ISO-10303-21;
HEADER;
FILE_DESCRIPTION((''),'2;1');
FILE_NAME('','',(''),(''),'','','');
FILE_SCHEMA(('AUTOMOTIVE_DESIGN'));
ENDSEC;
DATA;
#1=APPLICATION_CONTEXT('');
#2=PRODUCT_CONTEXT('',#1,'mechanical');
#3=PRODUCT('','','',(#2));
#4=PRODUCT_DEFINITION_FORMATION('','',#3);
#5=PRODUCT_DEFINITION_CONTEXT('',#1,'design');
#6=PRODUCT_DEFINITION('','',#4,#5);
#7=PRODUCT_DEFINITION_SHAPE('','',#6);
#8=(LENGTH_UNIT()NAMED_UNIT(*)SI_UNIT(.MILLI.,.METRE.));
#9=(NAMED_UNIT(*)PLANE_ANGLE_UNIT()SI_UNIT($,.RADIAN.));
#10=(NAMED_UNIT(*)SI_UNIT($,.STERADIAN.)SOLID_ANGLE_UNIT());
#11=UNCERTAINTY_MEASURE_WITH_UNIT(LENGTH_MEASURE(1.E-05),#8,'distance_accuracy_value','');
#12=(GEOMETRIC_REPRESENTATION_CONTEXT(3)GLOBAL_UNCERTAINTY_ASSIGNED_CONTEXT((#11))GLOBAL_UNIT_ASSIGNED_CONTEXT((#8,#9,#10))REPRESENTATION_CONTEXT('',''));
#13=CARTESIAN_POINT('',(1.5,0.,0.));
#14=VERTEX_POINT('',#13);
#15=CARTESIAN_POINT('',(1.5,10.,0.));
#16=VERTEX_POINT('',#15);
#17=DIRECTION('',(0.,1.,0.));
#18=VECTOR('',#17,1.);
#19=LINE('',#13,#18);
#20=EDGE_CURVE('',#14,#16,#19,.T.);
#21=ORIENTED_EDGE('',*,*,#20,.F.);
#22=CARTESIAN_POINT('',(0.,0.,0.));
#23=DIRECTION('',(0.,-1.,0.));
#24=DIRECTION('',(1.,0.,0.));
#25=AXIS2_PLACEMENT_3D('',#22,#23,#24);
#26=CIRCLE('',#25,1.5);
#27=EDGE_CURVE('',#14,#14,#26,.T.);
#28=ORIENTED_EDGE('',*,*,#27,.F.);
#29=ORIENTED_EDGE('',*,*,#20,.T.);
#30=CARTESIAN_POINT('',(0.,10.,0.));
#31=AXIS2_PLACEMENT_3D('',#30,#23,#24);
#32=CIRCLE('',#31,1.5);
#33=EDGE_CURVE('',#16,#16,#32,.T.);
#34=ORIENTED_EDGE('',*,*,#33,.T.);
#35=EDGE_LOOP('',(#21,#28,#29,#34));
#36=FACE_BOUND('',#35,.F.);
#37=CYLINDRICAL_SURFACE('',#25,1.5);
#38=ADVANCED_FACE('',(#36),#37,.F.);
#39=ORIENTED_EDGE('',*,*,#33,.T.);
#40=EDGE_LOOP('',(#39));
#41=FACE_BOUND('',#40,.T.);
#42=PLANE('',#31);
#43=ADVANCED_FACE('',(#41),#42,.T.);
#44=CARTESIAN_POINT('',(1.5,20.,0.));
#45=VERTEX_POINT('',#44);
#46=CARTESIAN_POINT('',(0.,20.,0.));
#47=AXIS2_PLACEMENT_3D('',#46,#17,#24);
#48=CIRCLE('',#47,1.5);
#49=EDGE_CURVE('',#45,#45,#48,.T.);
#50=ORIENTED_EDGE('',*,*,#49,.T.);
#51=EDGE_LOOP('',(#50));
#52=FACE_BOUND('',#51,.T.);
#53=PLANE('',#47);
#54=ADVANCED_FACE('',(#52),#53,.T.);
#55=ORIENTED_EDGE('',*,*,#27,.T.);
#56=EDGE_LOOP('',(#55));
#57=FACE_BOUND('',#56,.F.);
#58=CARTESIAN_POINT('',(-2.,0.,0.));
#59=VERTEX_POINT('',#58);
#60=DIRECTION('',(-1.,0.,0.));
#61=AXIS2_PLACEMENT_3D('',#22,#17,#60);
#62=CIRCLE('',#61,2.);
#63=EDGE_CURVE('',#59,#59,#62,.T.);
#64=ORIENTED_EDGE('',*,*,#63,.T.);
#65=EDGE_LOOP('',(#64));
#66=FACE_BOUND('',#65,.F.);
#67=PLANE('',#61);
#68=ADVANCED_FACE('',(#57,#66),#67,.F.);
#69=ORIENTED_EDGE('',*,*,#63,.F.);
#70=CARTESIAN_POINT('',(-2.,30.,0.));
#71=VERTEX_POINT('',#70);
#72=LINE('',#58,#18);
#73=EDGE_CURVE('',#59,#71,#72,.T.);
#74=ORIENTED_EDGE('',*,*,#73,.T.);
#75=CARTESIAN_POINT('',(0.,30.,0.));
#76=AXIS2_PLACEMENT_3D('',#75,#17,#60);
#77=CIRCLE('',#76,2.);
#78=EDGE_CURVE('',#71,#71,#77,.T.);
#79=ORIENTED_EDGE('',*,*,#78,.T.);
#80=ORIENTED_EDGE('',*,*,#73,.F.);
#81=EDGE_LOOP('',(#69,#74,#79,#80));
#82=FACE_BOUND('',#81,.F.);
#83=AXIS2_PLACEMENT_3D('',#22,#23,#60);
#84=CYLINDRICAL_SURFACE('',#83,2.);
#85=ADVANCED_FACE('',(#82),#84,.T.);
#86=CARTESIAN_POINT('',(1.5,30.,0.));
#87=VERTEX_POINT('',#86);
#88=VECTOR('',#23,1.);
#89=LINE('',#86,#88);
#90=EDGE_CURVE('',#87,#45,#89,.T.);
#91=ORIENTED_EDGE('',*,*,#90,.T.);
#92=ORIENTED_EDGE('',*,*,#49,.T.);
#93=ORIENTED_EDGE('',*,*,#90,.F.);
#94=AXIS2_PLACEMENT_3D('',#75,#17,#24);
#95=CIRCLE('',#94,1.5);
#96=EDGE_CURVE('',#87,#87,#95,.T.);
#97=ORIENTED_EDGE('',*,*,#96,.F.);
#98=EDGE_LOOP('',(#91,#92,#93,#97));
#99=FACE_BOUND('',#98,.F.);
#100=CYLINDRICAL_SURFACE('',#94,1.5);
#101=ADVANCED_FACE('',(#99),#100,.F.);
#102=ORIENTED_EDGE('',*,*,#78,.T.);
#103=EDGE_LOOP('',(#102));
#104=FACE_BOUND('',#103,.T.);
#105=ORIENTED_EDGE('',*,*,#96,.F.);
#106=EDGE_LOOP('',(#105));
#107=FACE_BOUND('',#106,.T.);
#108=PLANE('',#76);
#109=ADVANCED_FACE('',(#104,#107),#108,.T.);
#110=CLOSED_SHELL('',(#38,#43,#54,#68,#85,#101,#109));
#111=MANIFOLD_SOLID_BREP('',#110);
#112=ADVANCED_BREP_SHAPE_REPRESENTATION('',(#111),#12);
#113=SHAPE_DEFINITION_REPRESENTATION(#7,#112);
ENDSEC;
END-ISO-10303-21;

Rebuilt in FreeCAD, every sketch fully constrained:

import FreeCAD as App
import Part
import Sketcher
Q = App.Units.Quantity

doc = App.newDocument("Part")
body = doc.addObject("PartDesign::Body", "Body")

# Sketch on XZ plane
sketch1 = body.newObject("Sketcher::SketchObject", "Sketch")
sketch1.AttachmentSupport = (doc.getObject("XZ_Plane"), [""])
sketch1.MapMode = "FlatFace"
sketch1.addGeometry(Part.Circle(App.Vector(0, 0, 0), App.Vector(0, 0, 1), 2), False)
sketch1.addConstraint([
    Sketcher.Constraint("Coincident", 0, 3, -1, 1),
    Sketcher.Constraint("Diameter", 0, Q("4 mm")),
])
pad1 = body.newObject("PartDesign::Pad", "Pad")
pad1.Profile = sketch1
pad1.Length = 30
pad1.Reversed = True

# Sketch on XZ plane
sketch2 = body.newObject("Sketcher::SketchObject", "Sketch001")
sketch2.AttachmentSupport = (doc.getObject("XZ_Plane"), [""])
sketch2.MapMode = "FlatFace"
sketch2.addGeometry(Part.Circle(App.Vector(0, 0, 0), App.Vector(0, 0, 1), 1.5), False)
sketch2.addConstraint([
    Sketcher.Constraint("Coincident", 0, 3, -1, 1),
    Sketcher.Constraint("Diameter", 0, Q("3 mm")),
])
pocket1 = body.newObject("PartDesign::Pocket", "Pocket")
pocket1.Profile = sketch2
pocket1.Length = 10

# Sketch on XZ plane
sketch3 = body.newObject("Sketcher::SketchObject", "Sketch002")
sketch3.AttachmentSupport = (doc.getObject("XZ_Plane"), [""])
sketch3.MapMode = "FlatFace"
sketch3.AttachmentOffset = App.Placement(App.Vector(0, 0, -30), App.Rotation())
sketch3.addGeometry(Part.Circle(App.Vector(0, 0, 0), App.Vector(0, 0, 1), 1.5), False)
sketch3.addConstraint([
    Sketcher.Constraint("Coincident", 0, 3, -1, 1),
    Sketcher.Constraint("Diameter", 0, Q("3 mm")),
])
pocket2 = body.newObject("PartDesign::Pocket", "Pocket001")
pocket2.Profile = sketch3
pocket2.Length = 10
pocket2.Reversed = True

doc.recompute()
